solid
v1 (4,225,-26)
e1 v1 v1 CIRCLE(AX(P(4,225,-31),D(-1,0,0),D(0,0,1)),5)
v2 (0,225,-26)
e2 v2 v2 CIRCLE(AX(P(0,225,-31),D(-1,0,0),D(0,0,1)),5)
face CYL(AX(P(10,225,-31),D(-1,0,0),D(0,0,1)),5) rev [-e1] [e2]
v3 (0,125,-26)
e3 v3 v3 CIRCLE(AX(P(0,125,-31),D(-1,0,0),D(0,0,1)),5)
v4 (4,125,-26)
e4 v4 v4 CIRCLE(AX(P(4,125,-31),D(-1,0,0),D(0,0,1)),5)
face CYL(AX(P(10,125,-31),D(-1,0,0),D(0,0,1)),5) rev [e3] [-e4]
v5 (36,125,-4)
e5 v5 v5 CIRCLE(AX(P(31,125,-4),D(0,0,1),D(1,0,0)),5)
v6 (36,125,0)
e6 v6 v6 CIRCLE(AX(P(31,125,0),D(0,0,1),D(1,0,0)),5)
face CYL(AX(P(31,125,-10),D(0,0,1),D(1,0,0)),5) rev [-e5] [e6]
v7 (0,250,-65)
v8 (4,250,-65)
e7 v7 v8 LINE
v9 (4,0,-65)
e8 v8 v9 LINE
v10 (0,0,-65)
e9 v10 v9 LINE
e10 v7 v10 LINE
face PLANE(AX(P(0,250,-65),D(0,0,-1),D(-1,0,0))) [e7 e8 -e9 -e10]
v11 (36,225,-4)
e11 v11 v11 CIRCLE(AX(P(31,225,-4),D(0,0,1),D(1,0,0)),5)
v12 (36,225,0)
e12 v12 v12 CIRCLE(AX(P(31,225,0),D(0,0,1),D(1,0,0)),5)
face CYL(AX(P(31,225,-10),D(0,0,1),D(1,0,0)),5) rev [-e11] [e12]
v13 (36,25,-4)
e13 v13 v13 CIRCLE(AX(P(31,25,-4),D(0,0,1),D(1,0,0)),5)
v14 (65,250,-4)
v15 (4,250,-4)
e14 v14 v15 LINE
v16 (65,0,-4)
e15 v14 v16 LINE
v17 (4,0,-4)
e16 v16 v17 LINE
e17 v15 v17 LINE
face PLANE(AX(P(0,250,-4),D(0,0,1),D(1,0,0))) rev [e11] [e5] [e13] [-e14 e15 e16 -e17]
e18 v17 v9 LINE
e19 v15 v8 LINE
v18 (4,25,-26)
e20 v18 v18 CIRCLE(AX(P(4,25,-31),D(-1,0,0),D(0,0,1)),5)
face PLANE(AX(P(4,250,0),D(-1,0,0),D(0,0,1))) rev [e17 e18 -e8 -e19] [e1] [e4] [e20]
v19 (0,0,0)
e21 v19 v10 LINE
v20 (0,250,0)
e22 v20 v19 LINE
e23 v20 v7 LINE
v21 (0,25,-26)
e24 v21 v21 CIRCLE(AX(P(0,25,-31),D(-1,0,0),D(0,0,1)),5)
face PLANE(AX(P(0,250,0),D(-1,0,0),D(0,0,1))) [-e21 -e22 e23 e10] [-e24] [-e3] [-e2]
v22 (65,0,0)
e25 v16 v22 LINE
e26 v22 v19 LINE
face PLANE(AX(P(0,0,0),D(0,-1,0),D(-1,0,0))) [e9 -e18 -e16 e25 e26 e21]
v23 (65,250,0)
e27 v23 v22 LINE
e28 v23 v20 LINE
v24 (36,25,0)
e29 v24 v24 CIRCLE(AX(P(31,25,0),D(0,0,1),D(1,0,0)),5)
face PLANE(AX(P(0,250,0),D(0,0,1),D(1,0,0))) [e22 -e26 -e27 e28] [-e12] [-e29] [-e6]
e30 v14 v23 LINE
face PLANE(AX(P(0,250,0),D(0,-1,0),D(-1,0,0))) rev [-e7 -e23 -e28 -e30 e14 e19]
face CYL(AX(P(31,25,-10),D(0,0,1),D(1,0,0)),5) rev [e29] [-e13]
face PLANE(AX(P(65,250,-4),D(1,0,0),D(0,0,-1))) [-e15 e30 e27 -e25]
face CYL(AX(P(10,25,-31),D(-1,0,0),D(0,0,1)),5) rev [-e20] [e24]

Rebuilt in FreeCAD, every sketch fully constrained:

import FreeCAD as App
import Part
import Sketcher
Q = App.Units.Quantity


def add_polygon(sketch, points):
    """Adds a closed chain of lines whose ends are joined by coincident constraints."""
    first, n = sketch.GeometryCount, len(points)
    for a, b in zip(points, points[1:] + points[:1]):
        sketch.addGeometry(Part.LineSegment(App.Vector(*a, 0), App.Vector(*b, 0)), False)
    for i in range(n):
        sketch.addConstraint(Sketcher.Constraint("Coincident", first + i, 2, first + (i + 1) % n, 1))

doc = App.newDocument("Part")
body = doc.addObject("PartDesign::Body", "Body")

sketch1 = body.newObject("Sketcher::SketchObject", "Sketch")
sketch1.AttachmentSupport = (doc.getObject("XZ_Plane"), [""])
sketch1.MapMode = "FlatFace"
add_polygon(sketch1, [(0, -65), (0, 0), (65, 0), (65, -4), (4, -4), (4, -65)])
sketch1.addConstraint(Sketcher.Constraint("Vertical", 0))
sketch1.addConstraint(Sketcher.Constraint("Horizontal", 1))
sketch1.addConstraint(Sketcher.Constraint("Vertical", 2))
sketch1.addConstraint(Sketcher.Constraint("Horizontal", 3))
sketch1.addConstraint(Sketcher.Constraint("Vertical", 4))
sketch1.addConstraint(Sketcher.Constraint("Horizontal", 5))
sketch1.addConstraint(Sketcher.Constraint("Coincident", 0, 2, -1, 1))
sketch1.addConstraint(Sketcher.Constraint("Equal", 1, 0))
sketch1.addConstraint(Sketcher.Constraint("Equal", 5, 2))
sketch1.addConstraint(Sketcher.Constraint("DistanceX", 1, 1, 1, 2, Q("65 mm")))
sketch1.addConstraint(Sketcher.Constraint("DistanceX", 3, 2, 3, 1, Q("61 mm")))
pad1 = body.newObject("PartDesign::Pad", "Pad")
pad1.Profile = sketch1
pad1.Length = 250
pad1.Reversed = True

sketch2 = body.newObject("Sketcher::SketchObject", "Sketch001")
sketch2.AttachmentSupport = (doc.getObject("YZ_Plane"), [""])
sketch2.MapMode = "FlatFace"
sketch2.addGeometry(Part.Circle(App.Vector(25, -31, 0), App.Vector(0, 0, 1), 5), False)
sketch2.addGeometry(Part.Circle(App.Vector(125, -31, 0), App.Vector(0, 0, 1), 5), False)
sketch2.addGeometry(Part.Circle(App.Vector(225, -31, 0), App.Vector(0, 0, 1), 5), False)
sketch2.addConstraint(Sketcher.Constraint("Equal", 0, 1))
sketch2.addConstraint(Sketcher.Constraint("Equal", 1, 2))
sketch2.addConstraint(Sketcher.Constraint("Horizontal", 0, 3, 1, 3))
sketch2.addConstraint(Sketcher.Constraint("Horizontal", 1, 3, 2, 3))
sketch2.addConstraint(Sketcher.Constraint("Diameter", 0, Q("10 mm")))
sketch2.addConstraint(Sketcher.Constraint("DistanceX", -1, 1, 0, 3, Q("25 mm")))
sketch2.addConstraint(Sketcher.Constraint("DistanceY", 0, 3, -1, 1, Q("31 mm")))
sketch2.addConstraint(Sketcher.Constraint("DistanceX", -1, 1, 1, 3, Q("125 mm")))
sketch2.addConstraint(Sketcher.Constraint("DistanceX", -1, 1, 2, 3, Q("225 mm")))
pocket1 = body.newObject("PartDesign::Pocket", "Pocket")
pocket1.Profile = sketch2
pocket1.Length = 10
pocket1.Reversed = True

sketch3 = body.newObject("Sketcher::SketchObject", "Sketch002")
sketch3.AttachmentSupport = (doc.getObject("XY_Plane"), [""])
sketch3.MapMode = "FlatFace"
sketch3.addGeometry(Part.Circle(App.Vector(31, 25, 0), App.Vector(0, 0, 1), 5), False)
sketch3.addGeometry(Part.Circle(App.Vector(31, 125, 0), App.Vector(0, 0, 1), 5), False)
sketch3.addGeometry(Part.Circle(App.Vector(31, 225, 0), App.Vector(0, 0, 1), 5), False)
sketch3.addConstraint(Sketcher.Constraint("Equal", 0, 1))
sketch3.addConstraint(Sketcher.Constraint("Equal", 1, 2))
sketch3.addConstraint(Sketcher.Constraint("Vertical", 0, 3, 1, 3))
sketch3.addConstraint(Sketcher.Constraint("Vertical", 1, 3, 2, 3))
sketch3.addConstraint(Sketcher.Constraint("Diameter", 0, Q("10 mm")))
sketch3.addConstraint(Sketcher.Constraint("DistanceX", -1, 1, 0, 3, Q("31 mm")))
sketch3.addConstraint(Sketcher.Constraint("DistanceY", -1, 1, 0, 3, Q("25 mm")))
sketch3.addConstraint(Sketcher.Constraint("DistanceY", -1, 1, 1, 3, Q("125 mm")))
sketch3.addConstraint(Sketcher.Constraint("DistanceY", -1, 1, 2, 3, Q("225 mm")))
pocket2 = body.newObject("PartDesign::Pocket", "Pocket001")
pocket2.Profile = sketch3
pocket2.Length = 10

doc.recompute()
